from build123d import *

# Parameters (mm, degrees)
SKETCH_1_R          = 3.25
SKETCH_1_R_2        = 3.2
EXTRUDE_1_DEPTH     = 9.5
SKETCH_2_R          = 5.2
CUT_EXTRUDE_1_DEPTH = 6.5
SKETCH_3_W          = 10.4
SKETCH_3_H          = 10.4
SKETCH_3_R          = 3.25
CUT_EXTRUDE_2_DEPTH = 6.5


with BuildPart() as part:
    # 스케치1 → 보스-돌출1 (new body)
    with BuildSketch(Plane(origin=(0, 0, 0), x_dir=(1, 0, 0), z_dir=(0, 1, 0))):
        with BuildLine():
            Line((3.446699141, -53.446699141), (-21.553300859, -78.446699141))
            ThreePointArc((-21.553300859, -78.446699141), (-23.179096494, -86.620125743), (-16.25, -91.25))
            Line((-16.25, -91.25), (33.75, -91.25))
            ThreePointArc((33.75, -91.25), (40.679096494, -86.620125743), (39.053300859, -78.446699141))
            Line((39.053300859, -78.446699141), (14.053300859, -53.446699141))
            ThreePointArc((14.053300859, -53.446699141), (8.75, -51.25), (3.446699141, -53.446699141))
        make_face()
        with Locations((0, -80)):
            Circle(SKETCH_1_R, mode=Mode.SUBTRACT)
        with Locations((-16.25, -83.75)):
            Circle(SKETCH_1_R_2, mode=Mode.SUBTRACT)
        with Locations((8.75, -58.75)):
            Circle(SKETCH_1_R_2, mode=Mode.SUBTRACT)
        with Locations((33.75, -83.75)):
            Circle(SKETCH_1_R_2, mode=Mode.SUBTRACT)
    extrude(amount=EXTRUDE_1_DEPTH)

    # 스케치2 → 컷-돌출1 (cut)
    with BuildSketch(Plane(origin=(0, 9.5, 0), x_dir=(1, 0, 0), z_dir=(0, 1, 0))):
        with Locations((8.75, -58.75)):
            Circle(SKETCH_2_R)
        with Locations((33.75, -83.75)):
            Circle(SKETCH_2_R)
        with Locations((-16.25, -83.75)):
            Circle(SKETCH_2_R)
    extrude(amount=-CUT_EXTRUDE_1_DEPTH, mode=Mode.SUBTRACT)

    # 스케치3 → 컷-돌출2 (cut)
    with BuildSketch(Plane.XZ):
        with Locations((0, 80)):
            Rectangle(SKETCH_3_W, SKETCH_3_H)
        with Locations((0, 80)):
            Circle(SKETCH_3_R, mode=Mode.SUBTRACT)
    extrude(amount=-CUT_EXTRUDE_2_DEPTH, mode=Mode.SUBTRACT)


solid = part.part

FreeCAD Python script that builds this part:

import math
import FreeCAD as App
import Part
import Sketcher
from FreeCAD import Vector

doc = App.newDocument("Part")
body = doc.addObject("PartDesign::Body", "Body")

sketch1 = body.newObject("Sketcher::SketchObject", "Sketch")
sketch1.AttachmentSupport = (doc.getObject("XZ_Plane"), [""])
sketch1.MapMode = "FlatFace"
sketch1.addGeometry([
    Part.LineSegment(Vector(3.4, 53.4, 0), Vector(-21.6, 78.4, 0)),
    Part.ArcOfCircle(Part.Circle(Vector(-16.2, 83.8, 0), Vector(0, 0, 1), 7.5), math.radians(90), math.radians(225)),
    Part.LineSegment(Vector(-16.2, 91.2, 0), Vector(33.8, 91.2, 0)),
    Part.ArcOfCircle(Part.Circle(Vector(33.8, 83.8, 0), Vector(0, 0, 1), 7.5), math.radians(-45), math.radians(90)),
    Part.LineSegment(Vector(39.1, 78.4, 0), Vector(14.1, 53.4, 0)),
    Part.ArcOfCircle(Part.Circle(Vector(8.8, 58.8, 0), Vector(0, 0, 1), 7.5), math.radians(-135), math.radians(-45)),
    Part.Circle(Vector(-16.2, 83.8, 0), Vector(0, 0, 1), 3.2),
    Part.Circle(Vector(0, 80, 0), Vector(0, 0, 1), 3.2),
    Part.Circle(Vector(33.8, 83.8, 0), Vector(0, 0, 1), 3.2),
    Part.Circle(Vector(8.8, 58.8, 0), Vector(0, 0, 1), 3.2),
], False)
sketch1.addConstraint([
    Sketcher.Constraint("Tangent", 0, 2, 1, 2),
    Sketcher.Constraint("Tangent", 1, 1, 2, 1),
    Sketcher.Constraint("Tangent", 2, 2, 3, 2),
    Sketcher.Constraint("Tangent", 3, 1, 4, 1),
    Sketcher.Constraint("Tangent", 4, 2, 5, 2),
    Sketcher.Constraint("Tangent", 5, 1, 0, 1),
    Sketcher.Constraint("Horizontal", 2),
    Sketcher.Constraint("Coincident", 6, 3, 1, 3),
    Sketcher.Constraint("Coincident", 8, 3, 3, 3),
    Sketcher.Constraint("Coincident", 9, 3, 5, 3),
    Sketcher.Constraint("Equal", 1, 3),
    Sketcher.Constraint("Equal", 3, 5),
    Sketcher.Constraint("Equal", 6, 8),
    Sketcher.Constraint("Equal", 8, 9),
    Sketcher.Constraint("PointOnObject", 7, 3, -2),
    Sketcher.Constraint("Perpendicular", 0, 4),
    Sketcher.Constraint("Horizontal", 0, 2, 3, 1),
    Sketcher.Constraint("Diameter", 6, 6.4),
    Sketcher.Constraint("Diameter", 7, 6.5),
    Sketcher.Constraint("Radius", 1, 7.5),
    Sketcher.Constraint("DistanceX", 2, 1, 2, 2, 50.0),
    Sketcher.Constraint("DistanceY", -1, 1, 7, 3, 80.0),
    Sketcher.Constraint("DistanceX", 1, 3, -1, 1, 16.25),
    Sketcher.Constraint("DistanceY", -1, 1, 1, 3, 83.75),
])
pad1 = body.newObject("PartDesign::Pad", "Pad")
pad1.Profile = sketch1
pad1.Length = 9.5
pad1.Reversed = True

sketch2 = body.newObject("Sketcher::SketchObject", "Sketch001")
sketch2.AttachmentSupport = (doc.getObject("XZ_Plane"), [""])
sketch2.MapMode = "FlatFace"
sketch2.AttachmentOffset = App.Placement(Vector(0, 0, -9.5), App.Rotation())
sketch2.addGeometry([
    Part.Circle(Vector(9, 59, 0), Vector(0, 0, 1), 5),
    Part.Circle(Vector(34, 84, 0), Vector(0, 0, 1), 5),
    Part.Circle(Vector(-16, 84, 0), Vector(0, 0, 1), 5),
], False)
sketch2.addConstraint([
    Sketcher.Constraint("Equal", 0, 1),
    Sketcher.Constraint("Equal", 1, 2),
    Sketcher.Constraint("Horizontal", 1, 3, 2, 3),
    Sketcher.Constraint("Diameter", 0, 10.4),
    Sketcher.Constraint("DistanceX", 0, 3, 1, 3, 25.0),
    Sketcher.Constraint("DistanceY", 0, 3, 1, 3, 25.0),
    Sketcher.Constraint("DistanceX", 2, 3, 0, 3, 25.0),
    Sketcher.Constraint("DistanceX", -1, 1, 0, 3, 8.75),
    Sketcher.Constraint("DistanceY", -1, 1, 0, 3, 58.75),
])
pocket1 = body.newObject("PartDesign::Pocket", "Pocket")
pocket1.Profile = sketch2
pocket1.Length = 6.5
pocket1.Reversed = True

sketch3 = body.newObject("Sketcher::SketchObject", "Sketch002")
sketch3.AttachmentSupport = (doc.getObject("XZ_Plane"), [""])
sketch3.MapMode = "FlatFace"
sketch3.addGeometry([
    Part.LineSegment(Vector(-5.2, 85.2, 0), Vector(-5.2, 74.8, 0)),
    Part.LineSegment(Vector(-5.2, 74.8, 0), Vector(5.2, 74.8, 0)),
    Part.LineSegment(Vector(5.2, 74.8, 0), Vector(5.2, 85.2, 0)),
    Part.LineSegment(Vector(5.2, 85.2, 0), Vector(-5.2, 85.2, 0)),
    Part.Circle(Vector(0, 80, 0), Vector(0, 0, 1), 3.2),
], False)
sketch3.addConstraint([
    Sketcher.Constraint("Coincident", 0, 2, 1, 1),
    Sketcher.Constraint("Coincident", 1, 2, 2, 1),
    Sketcher.Constraint("Coincident", 2, 2, 3, 1),
    Sketcher.Constraint("Coincident", 3, 2, 0, 1),
    Sketcher.Constraint("Vertical", 0),
    Sketcher.Constraint("Horizontal", 1),
    Sketcher.Constraint("Vertical", 2),
    Sketcher.Constraint("Horizontal", 3),
    Sketcher.Constraint("PointOnObject", 4, 3, -2),
    Sketcher.Constraint("Equal", 3, 0),
    Sketcher.Constraint("Diameter", 4, 6.5),
    Sketcher.Constraint("DistanceX", 1, 1, 1, 2, 10.4),
    Sketcher.Constraint("DistanceY", -1, 1, 4, 3, 80.0),
    Sketcher.Constraint("DistanceX", 0, 2, -1, 1, 5.2),
    Sketcher.Constraint("DistanceY", -1, 1, 0, 2, 74.8),
])
pocket2 = body.newObject("PartDesign::Pocket", "Pocket001")
pocket2.Profile = sketch3
pocket2.Length = 6.5

doc.recompute()
